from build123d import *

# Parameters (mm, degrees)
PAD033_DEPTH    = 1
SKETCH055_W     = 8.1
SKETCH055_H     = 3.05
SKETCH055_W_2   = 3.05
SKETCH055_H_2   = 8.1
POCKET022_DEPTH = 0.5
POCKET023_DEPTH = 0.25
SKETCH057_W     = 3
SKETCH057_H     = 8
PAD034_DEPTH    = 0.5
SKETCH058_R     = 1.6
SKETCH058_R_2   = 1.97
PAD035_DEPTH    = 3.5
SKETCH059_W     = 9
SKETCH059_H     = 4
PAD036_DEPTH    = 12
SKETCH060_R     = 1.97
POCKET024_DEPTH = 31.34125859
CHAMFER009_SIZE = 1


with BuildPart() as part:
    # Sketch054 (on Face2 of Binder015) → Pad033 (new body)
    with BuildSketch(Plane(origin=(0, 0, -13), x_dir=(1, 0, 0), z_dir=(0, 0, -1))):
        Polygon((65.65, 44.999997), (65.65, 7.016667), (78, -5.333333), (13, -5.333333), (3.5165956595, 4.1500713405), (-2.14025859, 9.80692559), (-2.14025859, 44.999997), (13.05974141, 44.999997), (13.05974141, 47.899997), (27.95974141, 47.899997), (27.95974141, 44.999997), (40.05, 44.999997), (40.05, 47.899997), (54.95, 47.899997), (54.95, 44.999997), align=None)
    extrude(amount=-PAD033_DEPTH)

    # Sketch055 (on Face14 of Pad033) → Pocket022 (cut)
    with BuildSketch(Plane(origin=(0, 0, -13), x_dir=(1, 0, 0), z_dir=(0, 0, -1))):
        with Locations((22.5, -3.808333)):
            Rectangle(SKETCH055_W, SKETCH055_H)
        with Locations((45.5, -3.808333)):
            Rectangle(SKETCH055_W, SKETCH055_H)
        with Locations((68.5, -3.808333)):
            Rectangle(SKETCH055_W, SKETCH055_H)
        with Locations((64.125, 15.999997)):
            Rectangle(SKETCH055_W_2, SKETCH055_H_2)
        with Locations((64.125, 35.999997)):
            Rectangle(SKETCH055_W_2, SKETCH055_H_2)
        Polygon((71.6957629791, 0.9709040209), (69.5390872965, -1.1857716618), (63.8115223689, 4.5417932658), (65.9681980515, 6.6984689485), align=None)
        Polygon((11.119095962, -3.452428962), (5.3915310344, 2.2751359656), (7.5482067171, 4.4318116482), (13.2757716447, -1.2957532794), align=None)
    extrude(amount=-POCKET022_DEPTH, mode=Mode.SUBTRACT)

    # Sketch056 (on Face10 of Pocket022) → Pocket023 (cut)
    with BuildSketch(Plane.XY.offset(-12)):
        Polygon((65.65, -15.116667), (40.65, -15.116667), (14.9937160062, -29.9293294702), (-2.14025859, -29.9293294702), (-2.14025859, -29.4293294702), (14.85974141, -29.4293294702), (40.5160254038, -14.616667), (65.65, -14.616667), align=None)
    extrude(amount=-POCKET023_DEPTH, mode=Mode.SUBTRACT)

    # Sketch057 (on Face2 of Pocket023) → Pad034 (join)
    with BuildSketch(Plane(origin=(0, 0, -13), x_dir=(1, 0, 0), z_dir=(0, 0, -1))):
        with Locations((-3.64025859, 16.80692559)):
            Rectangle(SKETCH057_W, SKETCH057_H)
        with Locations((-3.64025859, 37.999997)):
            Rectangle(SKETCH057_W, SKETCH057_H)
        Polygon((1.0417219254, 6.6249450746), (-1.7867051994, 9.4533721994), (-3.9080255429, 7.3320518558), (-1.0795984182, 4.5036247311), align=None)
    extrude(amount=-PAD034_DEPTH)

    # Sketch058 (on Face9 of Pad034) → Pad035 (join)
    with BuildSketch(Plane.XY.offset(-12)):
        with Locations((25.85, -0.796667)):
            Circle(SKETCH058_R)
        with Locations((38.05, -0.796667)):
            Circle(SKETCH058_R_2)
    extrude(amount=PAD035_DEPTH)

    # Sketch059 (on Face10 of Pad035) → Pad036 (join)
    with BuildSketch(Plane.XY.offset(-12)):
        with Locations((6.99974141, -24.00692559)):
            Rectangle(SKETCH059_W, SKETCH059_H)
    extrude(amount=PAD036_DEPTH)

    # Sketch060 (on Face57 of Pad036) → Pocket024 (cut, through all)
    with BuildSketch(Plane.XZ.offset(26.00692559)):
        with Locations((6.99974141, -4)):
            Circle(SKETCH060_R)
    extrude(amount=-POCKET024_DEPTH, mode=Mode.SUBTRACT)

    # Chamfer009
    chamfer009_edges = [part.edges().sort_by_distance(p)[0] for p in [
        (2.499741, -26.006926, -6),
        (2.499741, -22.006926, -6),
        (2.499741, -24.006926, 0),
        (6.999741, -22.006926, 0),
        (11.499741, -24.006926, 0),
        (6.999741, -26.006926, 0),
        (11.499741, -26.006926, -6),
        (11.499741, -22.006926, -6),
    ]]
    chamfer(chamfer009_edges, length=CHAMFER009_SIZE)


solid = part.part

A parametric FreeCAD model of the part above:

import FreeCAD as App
import Part
import Sketcher
from FreeCAD import Vector
Q = App.Units.Quantity


def edges_at(feature, points):
    """Names of the edges that pass closest to the given points."""
    edges = feature.Shape.Edges
    near = lambda p: min(range(len(edges)), key=lambda i: edges[i].distToShape(Part.Vertex(*p))[0])
    return sorted({f"Edge{near(p) + 1}" for p in points})


def add_polygon(sketch, points):
    """Adds a closed chain of lines whose ends are joined by coincident constraints."""
    first, n = sketch.GeometryCount, len(points)
    for a, b in zip(points, points[1:] + points[:1]):
        sketch.addGeometry(Part.LineSegment(App.Vector(*a, 0), App.Vector(*b, 0)), False)
    for i in range(n):
        sketch.addConstraint(Sketcher.Constraint("Coincident", first + i, 2, first + (i + 1) % n, 1))

doc = App.newDocument("Part")
params = doc.addObject("Spreadsheet::Sheet", "Params")
for row, (alias, value) in enumerate([
    ("sketch1_width", "65 mm"),
    ("sketch1_width2", "10.7 mm"),
    ("sketch1_width3", "14.9 mm"),
    ("sketch1_width4", "15.2 mm"),
    ("sketch1_height", "2.9 mm"),
    ("pad1_length", "1 mm"),
    ("sketch2_width", "8.1 mm"),
    ("sketch2_length", "8.1 mm"),
    ("sketch2_width2", "3.05 mm"),
    ("sketch2_length2", "3.05 mm"),
    ("pocket1_length", "0.5 mm"),
    ("sketch3_width", "25 mm"),
    ("sketch3_width2", "17 mm"),
    ("sketch3_height", "0.5 mm"),
    ("pocket2_length", "0.25 mm"),
    ("sketch4_width", "3 mm"),
    ("sketch4_height", "8 mm"),
    ("sketch4_length", "4 mm"),
    ("sketch4_length2", "3 mm"),
    ("pad2_length", "0.5 mm"),
    ("sketch5_diameter", "3.2 mm"),
    ("sketch5_diameter2", "3.94 mm"),
    ("pad3_length", "3.5 mm"),
    ("sketch6_width", "9 mm"),
    ("sketch6_height", "4 mm"),
    ("pad4_length", "12 mm"),
    ("sketch7_diameter", "3.94 mm"),
    ("chamfer_size", "1 mm"),
], start=1):
    params.set(f"A{row}", alias)
    params.set(f"B{row}", "=" + value)
    params.setAlias(f"B{row}", alias)

body = doc.addObject("PartDesign::Body", "Body")

# Sketch on XY plane
sketch1 = body.newObject("Sketcher::SketchObject", "Sketch")
sketch1.AttachmentSupport = (doc.getObject("XY_Plane"), [""])
sketch1.MapMode = "FlatFace"
sketch1.AttachmentOffset = App.Placement(Vector(0, 0, -13), App.Rotation())
add_polygon(sketch1, [(65.65, -7.016667), (65.65, -44.999997), (54.95, -44.999997), (54.95, -47.899997), (40.05, -47.899997), (40.05, -44.999997), (27.959741, -44.999997), (27.959741, -47.899997), (13.059741, -47.899997), (13.059741, -44.999997), (-2.140259, -44.999997), (-2.140259, -9.806926), (13, 5.333333), (78, 5.333333)])  # lines 0-13
sketch1.addConstraint(Sketcher.Constraint("Vertical", 0))
sketch1.addConstraint(Sketcher.Constraint("Horizontal", 1))
sketch1.addConstraint(Sketcher.Constraint("Vertical", 2))
sketch1.addConstraint(Sketcher.Constraint("Horizontal", 3))
sketch1.addConstraint(Sketcher.Constraint("Vertical", 4))
sketch1.addConstraint(Sketcher.Constraint("Horizontal", 5))
sketch1.addConstraint(Sketcher.Constraint("Vertical", 6))
sketch1.addConstraint(Sketcher.Constraint("Horizontal", 7))
sketch1.addConstraint(Sketcher.Constraint("Vertical", 8))
sketch1.addConstraint(Sketcher.Constraint("Horizontal", 9))
sketch1.addConstraint(Sketcher.Constraint("Vertical", 10))
sketch1.addConstraint(Sketcher.Constraint("Horizontal", 12))
sketch1.addConstraint(Sketcher.Constraint("Parallel", 11, 13))
sketch1.addConstraint(Sketcher.Constraint("Horizontal", 1, 2, 4, 2))
sketch1.addConstraint(Sketcher.Constraint("Horizontal", 3, 2, 6, 2))
sketch1.addConstraint(Sketcher.Constraint("Horizontal", 5, 2, 8, 2))
sketch1.addConstraint(Sketcher.Constraint("Equal", 3, 7))
sketch1.addConstraint(Sketcher.Constraint("DistanceX", 12, 1, 12, 2, Q("65 mm")))
sketch1.addConstraint(Sketcher.Constraint("Angle", 11, Q("45 deg")))
sketch1.addConstraint(Sketcher.Constraint("DistanceX", 1, 2, 1, 1, Q("10.7 mm")))
sketch1.addConstraint(Sketcher.Constraint("DistanceX", 3, 2, 3, 1, Q("14.9 mm")))
sketch1.addConstraint(Sketcher.Constraint("DistanceX", 9, 2, 9, 1, Q("15.2 mm")))
sketch1.addConstraint(Sketcher.Constraint("DistanceY", 2, 2, 2, 1, Q("2.9 mm")))
sketch1.addConstraint(Sketcher.Constraint("DistanceX", -1, 1, 11, 2, Q("13 mm")))
sketch1.addConstraint(Sketcher.Constraint("DistanceX", -1, 1, 0, 2, Q("65.65 mm")))
sketch1.addConstraint(Sketcher.Constraint("DistanceX", 5, 2, 5, 1, Q("12.090259 mm")))
sketch1.addConstraint(Sketcher.Constraint("DistanceY", 0, 2, 0, 1, Q("37.98333 mm")))
sketch1.addConstraint(Sketcher.Constraint("DistanceY", 0, 2, -1, 1, Q("44.999997 mm")))
sketch1.setExpression("Constraints[31]", "Params.sketch1_width")
sketch1.setExpression("Constraints[33]", "Params.sketch1_width2")
sketch1.setExpression("Constraints[34]", "Params.sketch1_width3")
sketch1.setExpression("Constraints[35]", "Params.sketch1_width4")
sketch1.setExpression("Constraints[36]", "Params.sketch1_height")
pad1 = body.newObject("PartDesign::Pad", "Pad")
pad1.Profile = sketch1
pad1.setExpression("Length", "Params.pad1_length")

# Sketch on XY plane
sketch2 = body.newObject("Sketcher::SketchObject", "Sketch001")
sketch2.AttachmentSupport = (doc.getObject("XY_Plane"), [""])
sketch2.MapMode = "FlatFace"
sketch2.AttachmentOffset = App.Placement(Vector(0, 0, -13), App.Rotation())
add_polygon(sketch2, [(18.45, 2.283333), (18.45, 5.333333), (26.55, 5.333333), (26.55, 2.283333)])  # lines 0-3
add_polygon(sketch2, [(41.45, 2.283333), (41.45, 5.333333), (49.55, 5.333333), (49.55, 2.283333)])  # lines 4-7
add_polygon(sketch2, [(64.45, 2.283333), (64.45, 5.333333), (72.55, 5.333333), (72.55, 2.283333)])  # lines 8-11
add_polygon(sketch2, [(62.6, -20.049997), (62.6, -11.949997), (65.65, -11.949997), (65.65, -20.049997)])  # lines 12-15
add_polygon(sketch2, [(62.6, -40.049997), (62.6, -31.949997), (65.65, -31.949997), (65.65, -40.049997)])  # lines 16-19
add_polygon(sketch2, [(69.539087, 1.185772), (71.695763, -0.970904), (65.968198, -6.698469), (63.811522, -4.541793)])  # lines 20-23
add_polygon(sketch2, [(5.391531, -2.275136), (11.119096, 3.452429), (13.275772, 1.295753), (7.548207, -4.431812)])  # lines 24-27
sketch2.addConstraint(Sketcher.Constraint("Vertical", 0))
sketch2.addConstraint(Sketcher.Constraint("Horizontal", 1))
sketch2.addConstraint(Sketcher.Constraint("Vertical", 2))
sketch2.addConstraint(Sketcher.Constraint("Horizontal", 3))
sketch2.addConstraint(Sketcher.Constraint("Vertical", 4))
sketch2.addConstraint(Sketcher.Constraint("Horizontal", 5))
sketch2.addConstraint(Sketcher.Constraint("Vertical", 6))
sketch2.addConstraint(Sketcher.Constraint("Horizontal", 7))
sketch2.addConstraint(Sketcher.Constraint("Vertical", 8))
sketch2.addConstraint(Sketcher.Constraint("Horizontal", 9))
sketch2.addConstraint(Sketcher.Constraint("Vertical", 10))
sketch2.addConstraint(Sketcher.Constraint("Horizontal", 11))
sketch2.addConstraint(Sketcher.Constraint("Vertical", 12))
sketch2.addConstraint(Sketcher.Constraint("Horizontal", 13))
sketch2.addConstraint(Sketcher.Constraint("Vertical", 14))
sketch2.addConstraint(Sketcher.Constraint("Horizontal", 15))
sketch2.addConstraint(Sketcher.Constraint("Vertical", 16))
sketch2.addConstraint(Sketcher.Constraint("Horizontal", 17))
sketch2.addConstraint(Sketcher.Constraint("Vertical", 18))
sketch2.addConstraint(Sketcher.Constraint("Horizontal", 19))
sketch2.addConstraint(Sketcher.Constraint("Perpendicular", 20, 21))
sketch2.addConstraint(Sketcher.Constraint("Perpendicular", 21, 22))
sketch2.addConstraint(Sketcher.Constraint("Perpendicular", 22, 23))
sketch2.addConstraint(Sketcher.Constraint("Parallel", 23, 24))
sketch2.addConstraint(Sketcher.Constraint("Perpendicular", 24, 25))
sketch2.addConstraint(Sketcher.Constraint("Perpendicular", 25, 26))
sketch2.addConstraint(Sketcher.Constraint("Perpendicular", 26, 27))
sketch2.addConstraint(Sketcher.Constraint("Horizontal", 1, 2, 4, 2))
sketch2.addConstraint(Sketcher.Constraint("Horizontal", 3, 2, 6, 2))
sketch2.addConstraint(Sketcher.Constraint("Horizontal", 5, 2, 8, 2))
sketch2.addConstraint(Sketcher.Constraint("Horizontal", 7, 2, 10, 2))
sketch2.addConstraint(Sketcher.Constraint("Vertical", 15, 2, 16, 2))
sketch2.addConstraint(Sketcher.Constraint("Vertical", 14, 2, 17, 2))
sketch2.addConstraint(Sketcher.Constraint("Equal", 3, 5))
sketch2.addConstraint(Sketcher.Constraint("Equal", 7, 9))
sketch2.addConstraint(Sketcher.Constraint("Equal", 19, 0))
sketch2.addConstraint(Sketcher.Constraint("Equal", 11, 12))
sketch2.addConstraint(Sketcher.Constraint("Equal", 14, 16))
sketch2.addConstraint(Sketcher.Constraint("Equal", 23, 24))
sketch2.addConstraint(Sketcher.Constraint("Equal", 22, 25))
sketch2.addConstraint(Sketcher.Constraint("Angle", 20, Q("-45 deg")))
sketch2.addConstraint(Sketcher.Constraint("DistanceX", 1, 1, 1, 2, Q("8.1 mm")))
sketch2.addConstraint(Sketcher.Constraint("DistanceX", 0, 2, 4, 2, Q("23 mm")))
sketch2.addConstraint(Sketcher.Constraint("DistanceX", 4, 2, 8, 2, Q("23 mm")))
sketch2.addConstraint(Sketcher.Constraint("DistanceY", 16, 2, 12, 2, Q("20 mm")))
sketch2.addConstraint(Sketcher.Constraint("Distance", 21, Q("8.1 mm")))
sketch2.addConstraint(Sketcher.Constraint("DistanceX", 13, 1, 13, 2, Q("3.05 mm")))
sketch2.addConstraint(Sketcher.Constraint("DistanceX", -1, 1, 12, 2, Q("62.6 mm")))
sketch2.addConstraint(Sketcher.Constraint("DistanceX", 11, 2, 13, 2, Q("1.2 mm")))
sketch2.addConstraint(Sketcher.Constraint("Distance", 20, Q("3.05 mm")))
sketch2.addConstraint(Sketcher.Constraint("DistanceX", -1, 1, 21, 2, Q("65.968198 mm")))
sketch2.addConstraint(Sketcher.Constraint("DistanceY", 21, 2, 11, 2, Q("8.981802 mm")))
sketch2.addConstraint(Sketcher.Constraint("DistanceY", 21, 2, -1, 1, Q("6.698469 mm")))
sketch2.addConstraint(Sketcher.Constraint("DistanceY", -1, 1, 24, 2, Q("3.452429 mm")))
sketch2.addConstraint(Sketcher.Constraint("DistanceX", -1, 1, 25, 2, Q("13.275772 mm")))
sketch2.addConstraint(Sketcher.Constraint("DistanceY", 12, 2, 11, 2, Q("14.23333 mm")))
sketch2.setExpression("Constraints[69]", "Params.sketch2_width")
sketch2.setExpression("Constraints[73]", "Params.sketch2_length")
sketch2.setExpression("Constraints[74]", "Params.sketch2_width2")
sketch2.setExpression("Constraints[77]", "Params.sketch2_length2")
pocket1 = body.newObject("PartDesign::Pocket", "Pocket")
pocket1.Profile = sketch2
pocket1.setExpression("Length", "Params.pocket1_length")
pocket1.Reversed = True

# Sketch on XY plane
sketch3 = body.newObject("Sketcher::SketchObject", "Sketch002")
sketch3.AttachmentSupport = (doc.getObject("XY_Plane"), [""])
sketch3.MapMode = "FlatFace"
sketch3.AttachmentOffset = App.Placement(Vector(0, 0, -12), App.Rotation())
add_polygon(sketch3, [(40.65, -15.116667), (65.65, -15.116667), (65.65, -14.616667), (40.516025, -14.616667), (14.859741, -29.429329), (-2.140259, -29.429329), (-2.140259, -29.929329), (14.993716, -29.929329)])  # lines 0-7
sketch3.addConstraint(Sketcher.Constraint("Horizontal", 0))
sketch3.addConstraint(Sketcher.Constraint("Vertical", 1))
sketch3.addConstraint(Sketcher.Constraint("Horizontal", 2))
sketch3.addConstraint(Sketcher.Constraint("Horizontal", 4))
sketch3.addConstraint(Sketcher.Constraint("Vertical", 5))
sketch3.addConstraint(Sketcher.Constraint("Horizontal", 6))
sketch3.addConstraint(Sketcher.Constraint("Parallel", 3, 7))
sketch3.addConstraint(Sketcher.Constraint("Equal", 1, 5))
sketch3.addConstraint(Sketcher.Constraint("DistanceX", 0, 1, 0, 2, Q("25 mm")))
sketch3.addConstraint(Sketcher.Constraint("DistanceX", 4, 2, 4, 1, Q("17 mm")))
sketch3.addConstraint(Sketcher.Constraint("Angle", 3, Q("-150 deg")))
sketch3.addConstraint(Sketcher.Constraint("DistanceY", 1, 1, 1, 2, Q("0.5 mm")))
sketch3.addConstraint(Sketcher.Constraint("DistanceX", -1, 1, 0, 2, Q("65.65 mm")))
sketch3.addConstraint(Sketcher.Constraint("DistanceX", 2, 2, 2, 1, Q("25.133975 mm")))
sketch3.addConstraint(Sketcher.Constraint("DistanceX", -1, 1, 3, 2, Q("14.859741 mm")))
sketch3.addConstraint(Sketcher.Constraint("DistanceY", 3, 2, -1, 1, Q("29.429329 mm")))
sketch3.setExpression("Constraints[16]", "Params.sketch3_width")
sketch3.setExpression("Constraints[17]", "Params.sketch3_width2")
sketch3.setExpression("Constraints[19]", "Params.sketch3_height")
pocket2 = body.newObject("PartDesign::Pocket", "Pocket001")
pocket2.Profile = sketch3
pocket2.setExpression("Length", "Params.pocket2_length")

# Sketch on XY plane
sketch4 = body.newObject("Sketcher::SketchObject", "Sketch003")
sketch4.AttachmentSupport = (doc.getObject("XY_Plane"), [""])
sketch4.MapMode = "FlatFace"
sketch4.AttachmentOffset = App.Placement(Vector(0, 0, -13), App.Rotation())
add_polygon(sketch4, [(-5.140259, -20.806926), (-5.140259, -12.806926), (-2.140259, -12.806926), (-2.140259, -20.806926)])  # lines 0-3
add_polygon(sketch4, [(-5.140259, -41.999997), (-5.140259, -33.999997), (-2.140259, -33.999997), (-2.140259, -41.999997)])  # lines 4-7
add_polygon(sketch4, [(1.041722, -6.624945), (-1.786705, -9.453372), (-3.908026, -7.332052), (-1.079598, -4.503625)])  # lines 8-11
sketch4.addConstraint(Sketcher.Constraint("Vertical", 0))
sketch4.addConstraint(Sketcher.Constraint("Horizontal", 1))
sketch4.addConstraint(Sketcher.Constraint("Vertical", 2))
sketch4.addConstraint(Sketcher.Constraint("Horizontal", 3))
sketch4.addConstraint(Sketcher.Constraint("Vertical", 4))
sketch4.addConstraint(Sketcher.Constraint("Horizontal", 5))
sketch4.addConstraint(Sketcher.Constraint("Vertical", 6))
sketch4.addConstraint(Sketcher.Constraint("Horizontal", 7))
sketch4.addConstraint(Sketcher.Constraint("Perpendicular", 8, 9))
sketch4.addConstraint(Sketcher.Constraint("Perpendicular", 9, 10))
sketch4.addConstraint(Sketcher.Constraint("Perpendicular", 10, 11))
sketch4.addConstraint(Sketcher.Constraint("Vertical", 3, 2, 4, 2))
sketch4.addConstraint(Sketcher.Constraint("Vertical", 2, 2, 5, 2))
sketch4.addConstraint(Sketcher.Constraint("Equal", 2, 4))
sketch4.addConstraint(Sketcher.Constraint("DistanceX", 1, 1, 1, 2, Q("3 mm")))
sketch4.addConstraint(Sketcher.Constraint("DistanceY", 0, 1, 0, 2, Q("8 mm")))
sketch4.addConstraint(Sketcher.Constraint("Angle", 8, Q("-135 deg")))
sketch4.addConstraint(Sketcher.Constraint("Distance", 8, Q("4 mm")))
sketch4.addConstraint(Sketcher.Constraint("Distance", 9, Q("3 mm")))
sketch4.addConstraint(Sketcher.Constraint("DistanceX", 10, 2, -1, 1, Q("1.079598 mm")))
sketch4.addConstraint(Sketcher.Constraint("DistanceY", 1, 2, 10, 2, Q("8.303301 mm")))
sketch4.addConstraint(Sketcher.Constraint("DistanceX", 0, 2, -1, 1, Q("5.140259 mm")))
sketch4.addConstraint(Sketcher.Constraint("DistanceY", 9, 2, -1, 1, Q("7.332052 mm")))
sketch4.addConstraint(Sketcher.Constraint("DistanceY", 4, 2, 3, 2, Q("13.193071 mm")))
sketch4.setExpression("Constraints[26]", "Params.sketch4_width")
sketch4.setExpression("Constraints[27]", "Params.sketch4_height")
sketch4.setExpression("Constraints[29]", "Params.sketch4_length")
sketch4.setExpression("Constraints[30]", "Params.sketch4_length2")
pad2 = body.newObject("PartDesign::Pad", "Pad001")
pad2.Profile = sketch4
pad2.setExpression("Length", "Params.pad2_length")

# Sketch on XY plane
sketch5 = body.newObject("Sketcher::SketchObject", "Sketch004")
sketch5.AttachmentSupport = (doc.getObject("XY_Plane"), [""])
sketch5.MapMode = "FlatFace"
sketch5.AttachmentOffset = App.Placement(Vector(0, 0, -12), App.Rotation())
sketch5.addGeometry(Part.Circle(Vector(25.85, -0.796667, 0), Vector(0, 0, 1), 1.6), False)
sketch5.addGeometry(Part.Circle(Vector(38.05, -0.796667, 0), Vector(0, 0, 1), 1.97), False)
sketch5.addConstraint(Sketcher.Constraint("Horizontal", 0, 3, 1, 3))
sketch5.addConstraint(Sketcher.Constraint("Diameter", 0, Q("3.2 mm")))
sketch5.addConstraint(Sketcher.Constraint("Diameter", 1, Q("3.94 mm")))
sketch5.addConstraint(Sketcher.Constraint("DistanceX", 0, 3, 1, 3, Q("12.2 mm")))
sketch5.addConstraint(Sketcher.Constraint("DistanceX", -1, 1, 0, 3, Q("25.85 mm")))
sketch5.addConstraint(Sketcher.Constraint("DistanceY", 0, 3, -1, 1, Q("0.796667 mm")))
sketch5.setExpression("Constraints[1]", "Params.sketch5_diameter")
sketch5.setExpression("Constraints[2]", "Params.sketch5_diameter2")
pad3 = body.newObject("PartDesign::Pad", "Pad002")
pad3.Profile = sketch5
pad3.setExpression("Length", "Params.pad3_length")

# Sketch on XY plane
sketch6 = body.newObject("Sketcher::SketchObject", "Sketch005")
sketch6.AttachmentSupport = (doc.getObject("XY_Plane"), [""])
sketch6.MapMode = "FlatFace"
sketch6.AttachmentOffset = App.Placement(Vector(0, 0, -12), App.Rotation())
add_polygon(sketch6, [(2.499741, -22.006926), (2.499741, -26.006926), (11.499741, -26.006926), (11.499741, -22.006926)])  # lines 0-3
sketch6.addConstraint(Sketcher.Constraint("Vertical", 0))
sketch6.addConstraint(Sketcher.Constraint("Horizontal", 1))
sketch6.addConstraint(Sketcher.Constraint("Vertical", 2))
sketch6.addConstraint(Sketcher.Constraint("Horizontal", 3))
sketch6.addConstraint(Sketcher.Constraint("DistanceX", 1, 1, 1, 2, Q("9 mm")))
sketch6.addConstraint(Sketcher.Constraint("DistanceY", 0, 2, 0, 1, Q("4 mm")))
sketch6.addConstraint(Sketcher.Constraint("DistanceX", -1, 1, 0, 2, Q("2.499741 mm")))
sketch6.addConstraint(Sketcher.Constraint("DistanceY", 0, 2, -1, 1, Q("26.006926 mm")))
sketch6.setExpression("Constraints[8]", "Params.sketch6_width")
sketch6.setExpression("Constraints[9]", "Params.sketch6_height")
pad4 = body.newObject("PartDesign::Pad", "Pad003")
pad4.Profile = sketch6
pad4.setExpression("Length", "Params.pad4_length")

# Sketch on XZ plane
sketch7 = body.newObject("Sketcher::SketchObject", "Sketch006")
sketch7.AttachmentSupport = (doc.getObject("XZ_Plane"), [""])
sketch7.MapMode = "FlatFace"
sketch7.AttachmentOffset = App.Placement(Vector(0, 0, 26.006926), App.Rotation())
sketch7.addGeometry(Part.Circle(Vector(6.999741, -4, 0), Vector(0, 0, 1), 1.97), False)
sketch7.addConstraint(Sketcher.Constraint("Diameter", 0, Q("3.94 mm")))
sketch7.addConstraint(Sketcher.Constraint("DistanceY", 0, 3, -1, 1, Q("4 mm")))
sketch7.addConstraint(Sketcher.Constraint("DistanceX", -1, 1, 0, 3, Q("6.999741 mm")))
sketch7.setExpression("Constraints[0]", "Params.sketch7_diameter")
pocket3 = body.newObject("PartDesign::Pocket", "Pocket002")
pocket3.Profile = sketch7
pocket3.Type = "ThroughAll"
doc.recompute()

chamfer = body.newObject("PartDesign::Chamfer", "Chamfer")
chamfer.Base = (pocket3, edges_at(pocket3, [
    (2.5, -26.007, -6),
    (2.5, -22.007, -6),
    (2.5, -24.007, 0),
    (7, -22.007, 0),
    (11.5, -24.007, 0),
    (7, -26.007, 0),
    (11.5, -26.007, -6),
    (11.5, -22.007, -6),
]))
chamfer.setExpression("Size", "Params.chamfer_size")

doc.recompute()
